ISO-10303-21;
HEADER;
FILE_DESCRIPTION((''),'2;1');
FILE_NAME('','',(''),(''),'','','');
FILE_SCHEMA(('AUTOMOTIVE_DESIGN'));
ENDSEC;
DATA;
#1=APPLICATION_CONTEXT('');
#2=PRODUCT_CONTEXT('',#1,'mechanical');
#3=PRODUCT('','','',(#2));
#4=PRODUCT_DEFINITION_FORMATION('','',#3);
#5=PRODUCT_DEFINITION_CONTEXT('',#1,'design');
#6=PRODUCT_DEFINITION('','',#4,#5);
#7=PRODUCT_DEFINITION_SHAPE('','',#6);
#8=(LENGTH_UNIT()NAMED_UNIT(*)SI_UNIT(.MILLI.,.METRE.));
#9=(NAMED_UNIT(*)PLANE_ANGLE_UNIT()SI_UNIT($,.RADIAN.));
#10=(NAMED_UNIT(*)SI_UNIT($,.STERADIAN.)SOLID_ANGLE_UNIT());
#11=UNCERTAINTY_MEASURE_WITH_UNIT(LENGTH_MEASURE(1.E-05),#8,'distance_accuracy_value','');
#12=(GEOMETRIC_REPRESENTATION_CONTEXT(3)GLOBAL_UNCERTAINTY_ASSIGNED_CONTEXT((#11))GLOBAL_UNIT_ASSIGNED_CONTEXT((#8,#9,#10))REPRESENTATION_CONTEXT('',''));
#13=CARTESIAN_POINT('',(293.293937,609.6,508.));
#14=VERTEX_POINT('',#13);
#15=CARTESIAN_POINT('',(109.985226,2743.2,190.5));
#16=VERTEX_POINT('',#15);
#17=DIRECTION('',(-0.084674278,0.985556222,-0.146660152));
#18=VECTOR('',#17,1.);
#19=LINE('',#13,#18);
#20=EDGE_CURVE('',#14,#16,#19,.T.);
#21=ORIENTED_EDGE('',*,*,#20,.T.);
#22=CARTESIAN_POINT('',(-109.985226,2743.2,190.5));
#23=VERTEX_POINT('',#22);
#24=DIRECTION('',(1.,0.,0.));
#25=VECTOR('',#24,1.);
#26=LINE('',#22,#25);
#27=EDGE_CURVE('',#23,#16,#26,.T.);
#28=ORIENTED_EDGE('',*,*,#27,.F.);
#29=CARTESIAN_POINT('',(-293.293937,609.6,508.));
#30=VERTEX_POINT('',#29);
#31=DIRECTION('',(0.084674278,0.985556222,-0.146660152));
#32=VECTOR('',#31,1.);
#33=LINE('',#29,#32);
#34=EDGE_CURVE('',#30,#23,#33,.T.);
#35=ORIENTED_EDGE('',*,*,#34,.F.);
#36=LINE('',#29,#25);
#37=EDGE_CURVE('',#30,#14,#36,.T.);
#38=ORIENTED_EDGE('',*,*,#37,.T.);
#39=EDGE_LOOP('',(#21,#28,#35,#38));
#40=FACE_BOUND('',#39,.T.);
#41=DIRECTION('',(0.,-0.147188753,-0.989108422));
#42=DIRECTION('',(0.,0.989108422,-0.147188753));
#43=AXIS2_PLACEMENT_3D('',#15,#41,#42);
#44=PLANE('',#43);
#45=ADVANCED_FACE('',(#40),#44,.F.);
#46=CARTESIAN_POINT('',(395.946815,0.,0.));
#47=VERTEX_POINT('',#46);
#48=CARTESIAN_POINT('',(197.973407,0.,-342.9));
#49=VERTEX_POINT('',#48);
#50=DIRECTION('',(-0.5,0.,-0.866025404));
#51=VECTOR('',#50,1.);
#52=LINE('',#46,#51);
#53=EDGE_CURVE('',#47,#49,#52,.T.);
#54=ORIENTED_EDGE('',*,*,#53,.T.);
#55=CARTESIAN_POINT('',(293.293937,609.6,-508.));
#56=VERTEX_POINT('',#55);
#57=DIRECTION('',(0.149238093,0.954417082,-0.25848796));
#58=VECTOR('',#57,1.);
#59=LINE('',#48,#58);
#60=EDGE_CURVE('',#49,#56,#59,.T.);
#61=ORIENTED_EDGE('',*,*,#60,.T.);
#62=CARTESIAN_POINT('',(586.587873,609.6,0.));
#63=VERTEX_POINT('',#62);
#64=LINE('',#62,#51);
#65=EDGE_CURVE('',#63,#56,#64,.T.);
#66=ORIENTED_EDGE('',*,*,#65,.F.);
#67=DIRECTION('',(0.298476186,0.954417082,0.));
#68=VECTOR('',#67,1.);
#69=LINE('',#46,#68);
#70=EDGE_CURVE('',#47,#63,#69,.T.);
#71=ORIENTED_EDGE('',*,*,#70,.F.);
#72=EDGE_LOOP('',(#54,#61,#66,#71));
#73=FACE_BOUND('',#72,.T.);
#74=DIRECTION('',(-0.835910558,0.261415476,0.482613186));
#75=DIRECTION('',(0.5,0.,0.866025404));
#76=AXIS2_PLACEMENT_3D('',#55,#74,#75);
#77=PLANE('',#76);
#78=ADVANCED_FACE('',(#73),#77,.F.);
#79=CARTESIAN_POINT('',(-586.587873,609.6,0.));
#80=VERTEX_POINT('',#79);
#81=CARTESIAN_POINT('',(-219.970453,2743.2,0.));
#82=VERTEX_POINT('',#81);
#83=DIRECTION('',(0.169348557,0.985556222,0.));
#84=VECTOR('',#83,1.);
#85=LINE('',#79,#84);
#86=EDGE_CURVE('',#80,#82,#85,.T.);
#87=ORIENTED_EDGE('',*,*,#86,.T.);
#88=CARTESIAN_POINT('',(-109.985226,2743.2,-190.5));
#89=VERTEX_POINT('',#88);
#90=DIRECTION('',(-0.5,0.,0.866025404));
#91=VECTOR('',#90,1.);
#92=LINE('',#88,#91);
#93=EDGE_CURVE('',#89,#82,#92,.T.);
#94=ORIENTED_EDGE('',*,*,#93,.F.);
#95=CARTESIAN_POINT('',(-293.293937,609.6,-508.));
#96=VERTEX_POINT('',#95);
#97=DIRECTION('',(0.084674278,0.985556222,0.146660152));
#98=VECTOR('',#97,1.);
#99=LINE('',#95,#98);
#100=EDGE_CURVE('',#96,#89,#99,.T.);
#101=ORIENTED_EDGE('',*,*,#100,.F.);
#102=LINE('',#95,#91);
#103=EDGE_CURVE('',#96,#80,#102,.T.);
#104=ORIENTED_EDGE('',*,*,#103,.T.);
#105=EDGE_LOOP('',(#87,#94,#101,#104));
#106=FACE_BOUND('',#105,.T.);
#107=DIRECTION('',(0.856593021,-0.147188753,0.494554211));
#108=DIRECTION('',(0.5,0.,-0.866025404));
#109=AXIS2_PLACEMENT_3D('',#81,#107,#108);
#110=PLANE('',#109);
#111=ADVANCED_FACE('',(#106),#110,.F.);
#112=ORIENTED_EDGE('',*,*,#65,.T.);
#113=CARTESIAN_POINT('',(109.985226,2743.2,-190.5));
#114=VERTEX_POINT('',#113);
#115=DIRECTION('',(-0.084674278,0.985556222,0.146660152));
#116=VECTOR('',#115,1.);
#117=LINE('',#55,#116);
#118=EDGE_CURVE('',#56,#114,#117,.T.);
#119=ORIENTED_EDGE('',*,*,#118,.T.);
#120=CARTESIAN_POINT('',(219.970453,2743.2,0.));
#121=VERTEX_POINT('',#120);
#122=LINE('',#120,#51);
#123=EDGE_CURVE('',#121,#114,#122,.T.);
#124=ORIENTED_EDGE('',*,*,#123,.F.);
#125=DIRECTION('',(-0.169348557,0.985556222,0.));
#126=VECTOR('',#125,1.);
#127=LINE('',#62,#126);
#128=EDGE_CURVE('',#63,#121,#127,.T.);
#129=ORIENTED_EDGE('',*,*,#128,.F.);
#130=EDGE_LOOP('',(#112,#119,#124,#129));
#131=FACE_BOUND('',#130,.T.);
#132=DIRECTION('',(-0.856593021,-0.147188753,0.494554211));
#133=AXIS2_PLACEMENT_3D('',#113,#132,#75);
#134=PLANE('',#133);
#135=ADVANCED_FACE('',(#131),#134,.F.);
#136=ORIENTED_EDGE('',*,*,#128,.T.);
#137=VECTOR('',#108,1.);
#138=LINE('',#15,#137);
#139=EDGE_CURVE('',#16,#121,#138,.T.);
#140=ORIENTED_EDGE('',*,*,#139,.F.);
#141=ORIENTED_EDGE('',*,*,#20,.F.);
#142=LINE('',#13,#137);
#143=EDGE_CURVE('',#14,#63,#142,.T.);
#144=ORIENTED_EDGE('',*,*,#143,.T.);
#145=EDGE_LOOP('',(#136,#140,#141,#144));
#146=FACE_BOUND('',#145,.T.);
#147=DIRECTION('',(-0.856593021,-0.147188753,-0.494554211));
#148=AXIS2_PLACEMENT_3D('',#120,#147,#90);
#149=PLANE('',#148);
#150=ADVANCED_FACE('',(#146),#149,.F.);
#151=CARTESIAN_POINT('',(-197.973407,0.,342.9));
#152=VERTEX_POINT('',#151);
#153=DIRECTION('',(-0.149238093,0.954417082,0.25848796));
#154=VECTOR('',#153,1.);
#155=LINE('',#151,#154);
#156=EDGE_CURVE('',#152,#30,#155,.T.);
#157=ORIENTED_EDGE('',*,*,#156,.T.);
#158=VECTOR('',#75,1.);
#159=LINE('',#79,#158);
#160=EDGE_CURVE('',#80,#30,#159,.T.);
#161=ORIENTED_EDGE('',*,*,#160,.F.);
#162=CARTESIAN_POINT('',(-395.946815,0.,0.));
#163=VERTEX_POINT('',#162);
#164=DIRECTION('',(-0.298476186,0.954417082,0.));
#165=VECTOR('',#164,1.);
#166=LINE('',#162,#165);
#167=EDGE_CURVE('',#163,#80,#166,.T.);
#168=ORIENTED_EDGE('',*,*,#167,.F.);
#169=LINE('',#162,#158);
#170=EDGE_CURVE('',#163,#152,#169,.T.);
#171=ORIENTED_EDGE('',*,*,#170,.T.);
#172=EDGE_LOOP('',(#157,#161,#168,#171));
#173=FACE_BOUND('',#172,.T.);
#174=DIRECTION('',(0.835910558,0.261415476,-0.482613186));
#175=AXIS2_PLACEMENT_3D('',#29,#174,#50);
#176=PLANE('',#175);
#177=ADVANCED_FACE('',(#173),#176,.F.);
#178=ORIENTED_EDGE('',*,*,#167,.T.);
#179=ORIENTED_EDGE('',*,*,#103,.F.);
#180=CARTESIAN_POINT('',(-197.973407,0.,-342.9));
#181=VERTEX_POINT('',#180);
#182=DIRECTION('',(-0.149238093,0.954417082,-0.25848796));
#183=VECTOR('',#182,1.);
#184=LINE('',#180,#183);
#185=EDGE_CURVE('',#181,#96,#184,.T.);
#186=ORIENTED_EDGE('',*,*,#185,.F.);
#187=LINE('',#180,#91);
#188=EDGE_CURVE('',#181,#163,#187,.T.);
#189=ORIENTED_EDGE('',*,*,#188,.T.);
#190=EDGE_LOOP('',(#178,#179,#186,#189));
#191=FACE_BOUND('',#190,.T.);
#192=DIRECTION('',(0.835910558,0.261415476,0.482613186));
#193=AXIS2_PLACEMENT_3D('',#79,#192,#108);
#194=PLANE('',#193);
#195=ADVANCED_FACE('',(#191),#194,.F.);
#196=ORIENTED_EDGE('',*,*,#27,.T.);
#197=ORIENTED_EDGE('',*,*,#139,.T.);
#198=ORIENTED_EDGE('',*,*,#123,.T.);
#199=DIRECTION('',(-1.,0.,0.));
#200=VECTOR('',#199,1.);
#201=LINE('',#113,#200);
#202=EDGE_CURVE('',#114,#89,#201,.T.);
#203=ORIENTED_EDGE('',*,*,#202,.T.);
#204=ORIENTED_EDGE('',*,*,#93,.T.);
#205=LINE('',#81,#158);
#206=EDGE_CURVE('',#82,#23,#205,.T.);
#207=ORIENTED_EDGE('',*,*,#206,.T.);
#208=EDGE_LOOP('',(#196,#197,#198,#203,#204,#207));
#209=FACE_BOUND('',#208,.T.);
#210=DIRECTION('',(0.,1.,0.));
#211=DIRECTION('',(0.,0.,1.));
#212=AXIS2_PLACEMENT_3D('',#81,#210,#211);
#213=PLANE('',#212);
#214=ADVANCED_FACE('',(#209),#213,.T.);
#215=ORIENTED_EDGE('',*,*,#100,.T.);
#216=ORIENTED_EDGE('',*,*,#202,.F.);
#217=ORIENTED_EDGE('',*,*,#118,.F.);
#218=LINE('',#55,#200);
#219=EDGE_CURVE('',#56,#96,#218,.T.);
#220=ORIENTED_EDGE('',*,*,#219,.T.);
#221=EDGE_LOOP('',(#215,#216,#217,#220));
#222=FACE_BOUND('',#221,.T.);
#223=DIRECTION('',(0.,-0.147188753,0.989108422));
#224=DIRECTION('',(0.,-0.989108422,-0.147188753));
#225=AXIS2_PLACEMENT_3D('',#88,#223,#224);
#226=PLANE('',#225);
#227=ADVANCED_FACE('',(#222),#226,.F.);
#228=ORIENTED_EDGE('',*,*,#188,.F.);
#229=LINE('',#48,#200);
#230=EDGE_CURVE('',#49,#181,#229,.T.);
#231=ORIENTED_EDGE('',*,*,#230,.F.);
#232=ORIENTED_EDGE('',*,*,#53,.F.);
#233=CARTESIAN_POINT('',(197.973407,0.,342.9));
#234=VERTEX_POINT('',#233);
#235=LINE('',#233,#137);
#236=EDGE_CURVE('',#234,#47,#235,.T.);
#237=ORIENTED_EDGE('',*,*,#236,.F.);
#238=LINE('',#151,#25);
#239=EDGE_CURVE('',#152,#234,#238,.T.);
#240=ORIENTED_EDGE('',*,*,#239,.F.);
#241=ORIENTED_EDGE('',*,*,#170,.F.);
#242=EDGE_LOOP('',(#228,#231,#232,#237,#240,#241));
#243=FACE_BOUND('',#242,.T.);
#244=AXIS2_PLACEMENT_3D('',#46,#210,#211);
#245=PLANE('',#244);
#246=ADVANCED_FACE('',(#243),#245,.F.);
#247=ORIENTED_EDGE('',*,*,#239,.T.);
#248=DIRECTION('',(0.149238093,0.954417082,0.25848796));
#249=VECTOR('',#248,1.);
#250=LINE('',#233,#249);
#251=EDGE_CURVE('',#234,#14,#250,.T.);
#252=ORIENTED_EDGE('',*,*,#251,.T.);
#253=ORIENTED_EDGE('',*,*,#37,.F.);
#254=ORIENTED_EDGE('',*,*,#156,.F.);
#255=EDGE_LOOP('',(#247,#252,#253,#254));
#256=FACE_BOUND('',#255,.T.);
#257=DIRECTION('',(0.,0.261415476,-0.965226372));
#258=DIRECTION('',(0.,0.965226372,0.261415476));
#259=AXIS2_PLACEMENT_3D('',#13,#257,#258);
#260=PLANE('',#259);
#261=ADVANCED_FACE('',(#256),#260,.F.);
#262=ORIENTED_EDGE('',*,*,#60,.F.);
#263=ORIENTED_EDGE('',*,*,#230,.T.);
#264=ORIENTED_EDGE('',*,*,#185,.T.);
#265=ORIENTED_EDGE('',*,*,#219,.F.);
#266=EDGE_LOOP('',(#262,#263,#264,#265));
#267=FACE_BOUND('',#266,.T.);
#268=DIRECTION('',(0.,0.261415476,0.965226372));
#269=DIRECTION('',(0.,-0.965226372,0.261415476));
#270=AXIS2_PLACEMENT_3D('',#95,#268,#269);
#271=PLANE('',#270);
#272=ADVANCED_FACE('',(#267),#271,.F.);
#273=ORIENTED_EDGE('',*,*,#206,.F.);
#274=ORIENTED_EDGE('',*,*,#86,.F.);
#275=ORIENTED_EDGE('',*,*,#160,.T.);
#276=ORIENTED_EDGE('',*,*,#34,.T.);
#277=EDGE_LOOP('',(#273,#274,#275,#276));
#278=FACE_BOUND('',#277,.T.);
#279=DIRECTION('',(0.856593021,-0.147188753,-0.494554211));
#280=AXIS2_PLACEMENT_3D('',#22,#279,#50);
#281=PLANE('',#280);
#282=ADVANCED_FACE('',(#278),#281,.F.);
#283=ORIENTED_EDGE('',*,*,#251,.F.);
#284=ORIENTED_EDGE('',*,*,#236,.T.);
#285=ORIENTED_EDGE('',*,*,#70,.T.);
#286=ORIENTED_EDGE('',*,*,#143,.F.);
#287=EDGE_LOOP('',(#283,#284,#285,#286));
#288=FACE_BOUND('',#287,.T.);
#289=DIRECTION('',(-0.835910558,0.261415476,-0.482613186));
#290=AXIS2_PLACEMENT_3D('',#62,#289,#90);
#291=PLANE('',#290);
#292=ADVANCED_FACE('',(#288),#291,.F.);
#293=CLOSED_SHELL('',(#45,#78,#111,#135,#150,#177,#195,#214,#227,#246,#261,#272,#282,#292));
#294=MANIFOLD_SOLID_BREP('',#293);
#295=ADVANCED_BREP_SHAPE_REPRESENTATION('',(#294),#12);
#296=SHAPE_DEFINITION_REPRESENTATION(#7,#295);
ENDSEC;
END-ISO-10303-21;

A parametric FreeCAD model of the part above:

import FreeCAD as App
import Part
import Sketcher
from FreeCAD import Vector
Q = App.Units.Quantity

doc = App.newDocument("Part")
body = doc.addObject("PartDesign::Body", "Body")

# Sketch on XZ plane
sketch1 = body.newObject("Sketcher::SketchObject", "Sketch")
sketch1.AttachmentSupport = (doc.getObject("XZ_Plane"), [""])
sketch1.MapMode = "FlatFace"
sketch1.addGeometry([
    Part.LineSegment(Vector(396, 0, 0), Vector(198, -343, 0)),  # 0
    Part.LineSegment(Vector(198, -343, 0), Vector(-198, -343, 0)),  # 1
    Part.LineSegment(Vector(-198, -343, 0), Vector(-396, 0, 0)),  # 2
    Part.LineSegment(Vector(-396, 0, 0), Vector(-198, 343, 0)),  # 3
    Part.LineSegment(Vector(-198, 343, 0), Vector(198, 343, 0)),  # 4
    Part.LineSegment(Vector(198, 343, 0), Vector(396, 0, 0)),  # 5
], False)
sketch1.addConstraint([
    Sketcher.Constraint("Coincident", 0, 2, 1, 1),
    Sketcher.Constraint("Coincident", 1, 2, 2, 1),
    Sketcher.Constraint("Coincident", 2, 2, 3, 1),
    Sketcher.Constraint("Coincident", 3, 2, 4, 1),
    Sketcher.Constraint("Coincident", 4, 2, 5, 1),
    Sketcher.Constraint("Coincident", 5, 2, 0, 1),
    Sketcher.Constraint("Horizontal", 1),
    Sketcher.Constraint("Horizontal", 4),
    Sketcher.Constraint("Symmetric", 0, 2, 3, 2, -1, 1),
    Sketcher.Constraint("Symmetric", 2, 2, 5, 2, -1, 1),
    Sketcher.Constraint("PointOnObject", 2, 2, -1),
    Sketcher.Constraint("Parallel", 2, 5),
    Sketcher.Constraint("Vertical", 1, 2, 3, 2),
    Sketcher.Constraint("Angle", 0, Q("-120 deg")),
    Sketcher.Constraint("DistanceY", 0, 2, -1, 1, 342.9),
    Sketcher.Constraint("DistanceX", 1, 2, 1, 1, 395.946815),
])

# Sketch on XZ plane
sketch2 = body.newObject("Sketcher::SketchObject", "Sketch001")
sketch2.AttachmentSupport = (doc.getObject("XZ_Plane"), [""])
sketch2.MapMode = "FlatFace"
sketch2.AttachmentOffset = App.Placement(Vector(0, 0, -609.6), App.Rotation())
sketch2.addGeometry([
    Part.LineSegment(Vector(587, 0, 0), Vector(293, -508, 0)),  # 0
    Part.LineSegment(Vector(293, -508, 0), Vector(-293, -508, 0)),  # 1
    Part.LineSegment(Vector(-293, -508, 0), Vector(-587, 0, 0)),  # 2
    Part.LineSegment(Vector(-587, 0, 0), Vector(-293, 508, 0)),  # 3
    Part.LineSegment(Vector(-293, 508, 0), Vector(293, 508, 0)),  # 4
    Part.LineSegment(Vector(293, 508, 0), Vector(587, 0, 0)),  # 5
], False)
sketch2.addConstraint([
    Sketcher.Constraint("Coincident", 0, 2, 1, 1),
    Sketcher.Constraint("Coincident", 1, 2, 2, 1),
    Sketcher.Constraint("Coincident", 2, 2, 3, 1),
    Sketcher.Constraint("Coincident", 3, 2, 4, 1),
    Sketcher.Constraint("Coincident", 4, 2, 5, 1),
    Sketcher.Constraint("Coincident", 5, 2, 0, 1),
    Sketcher.Constraint("Horizontal", 1),
    Sketcher.Constraint("Horizontal", 4),
    Sketcher.Constraint("Symmetric", 0, 2, 3, 2, -1, 1),
    Sketcher.Constraint("Symmetric", 2, 2, 5, 2, -1, 1),
    Sketcher.Constraint("PointOnObject", 2, 2, -1),
    Sketcher.Constraint("Parallel", 2, 5),
    Sketcher.Constraint("Vertical", 1, 2, 3, 2),
    Sketcher.Constraint("Angle", 0, Q("-120 deg")),
    Sketcher.Constraint("DistanceY", 0, 2, -1, 1, 508.0),
    Sketcher.Constraint("DistanceX", 1, 2, 1, 1, 586.587873),
])

additiveloft = body.newObject("PartDesign::AdditiveLoft", "AdditiveLoft")
additiveloft.Profile = sketch1
additiveloft.Sections = [sketch2]

# Sketch on XZ plane
sketch3 = body.newObject("Sketcher::SketchObject", "Sketch002")
sketch3.AttachmentSupport = (doc.getObject("XZ_Plane"), [""])
sketch3.MapMode = "FlatFace"
sketch3.AttachmentOffset = App.Placement(Vector(0, 0, -609.6), App.Rotation())
sketch3.addGeometry([
    Part.LineSegment(Vector(587, 0, 0), Vector(293, -508, 0)),  # 0
    Part.LineSegment(Vector(293, -508, 0), Vector(-293, -508, 0)),  # 1
    Part.LineSegment(Vector(-293, -508, 0), Vector(-587, 0, 0)),  # 2
    Part.LineSegment(Vector(-587, 0, 0), Vector(-293, 508, 0)),  # 3
    Part.LineSegment(Vector(-293, 508, 0), Vector(293, 508, 0)),  # 4
    Part.LineSegment(Vector(293, 508, 0), Vector(587, 0, 0)),  # 5
], False)
sketch3.addConstraint([
    Sketcher.Constraint("Coincident", 0, 2, 1, 1),
    Sketcher.Constraint("Coincident", 1, 2, 2, 1),
    Sketcher.Constraint("Coincident", 2, 2, 3, 1),
    Sketcher.Constraint("Coincident", 3, 2, 4, 1),
    Sketcher.Constraint("Coincident", 4, 2, 5, 1),
    Sketcher.Constraint("Coincident", 5, 2, 0, 1),
    Sketcher.Constraint("Horizontal", 1),
    Sketcher.Constraint("Horizontal", 4),
    Sketcher.Constraint("Symmetric", 0, 2, 3, 2, -1, 1),
    Sketcher.Constraint("Symmetric", 2, 2, 5, 2, -1, 1),
    Sketcher.Constraint("PointOnObject", 2, 2, -1),
    Sketcher.Constraint("Parallel", 2, 5),
    Sketcher.Constraint("Vertical", 1, 2, 3, 2),
    Sketcher.Constraint("Angle", 0, Q("-120 deg")),
    Sketcher.Constraint("DistanceY", 0, 2, -1, 1, 508.0),
    Sketcher.Constraint("DistanceX", 1, 2, 1, 1, 586.587873),
])

# Sketch on XZ plane
sketch4 = body.newObject("Sketcher::SketchObject", "Sketch003")
sketch4.AttachmentSupport = (doc.getObject("XZ_Plane"), [""])
sketch4.MapMode = "FlatFace"
sketch4.AttachmentOffset = App.Placement(Vector(0, 0, -2743.2), App.Rotation())
sketch4.addGeometry([
    Part.LineSegment(Vector(-220, 0, 0), Vector(-110, 190, 0)),  # 0
    Part.LineSegment(Vector(-110, 190, 0), Vector(110, 190, 0)),  # 1
    Part.LineSegment(Vector(110, 190, 0), Vector(220, 0, 0)),  # 2
    Part.LineSegment(Vector(220, 0, 0), Vector(110, -190, 0)),  # 3
    Part.LineSegment(Vector(110, -190, 0), Vector(-110, -190, 0)),  # 4
    Part.LineSegment(Vector(-110, -190, 0), Vector(-220, 0, 0)),  # 5
], False)
sketch4.addConstraint([
    Sketcher.Constraint("Coincident", 0, 2, 1, 1),
    Sketcher.Constraint("Coincident", 1, 2, 2, 1),
    Sketcher.Constraint("Coincident", 2, 2, 3, 1),
    Sketcher.Constraint("Coincident", 3, 2, 4, 1),
    Sketcher.Constraint("Coincident", 4, 2, 5, 1),
    Sketcher.Constraint("Coincident", 5, 2, 0, 1),
    Sketcher.Constraint("Horizontal", 1),
    Sketcher.Constraint("Horizontal", 4),
    Sketcher.Constraint("Symmetric", 0, 2, 3, 2, -1, 1),
    Sketcher.Constraint("Symmetric", 2, 2, 5, 2, -1, 1),
    Sketcher.Constraint("PointOnObject", 2, 2, -1),
    Sketcher.Constraint("Parallel", 2, 5),
    Sketcher.Constraint("Vertical", 1, 2, 3, 2),
    Sketcher.Constraint("Angle", 0, Q("60 deg")),
    Sketcher.Constraint("DistanceY", 3, 2, 1, 2, 381.0),
    Sketcher.Constraint("DistanceX", 1, 1, 1, 2, 219.970453),
])

additiveloft2 = body.newObject("PartDesign::AdditiveLoft", "AdditiveLoft001")
additiveloft2.Profile = sketch3
additiveloft2.Sections = [sketch4]

doc.recompute()
